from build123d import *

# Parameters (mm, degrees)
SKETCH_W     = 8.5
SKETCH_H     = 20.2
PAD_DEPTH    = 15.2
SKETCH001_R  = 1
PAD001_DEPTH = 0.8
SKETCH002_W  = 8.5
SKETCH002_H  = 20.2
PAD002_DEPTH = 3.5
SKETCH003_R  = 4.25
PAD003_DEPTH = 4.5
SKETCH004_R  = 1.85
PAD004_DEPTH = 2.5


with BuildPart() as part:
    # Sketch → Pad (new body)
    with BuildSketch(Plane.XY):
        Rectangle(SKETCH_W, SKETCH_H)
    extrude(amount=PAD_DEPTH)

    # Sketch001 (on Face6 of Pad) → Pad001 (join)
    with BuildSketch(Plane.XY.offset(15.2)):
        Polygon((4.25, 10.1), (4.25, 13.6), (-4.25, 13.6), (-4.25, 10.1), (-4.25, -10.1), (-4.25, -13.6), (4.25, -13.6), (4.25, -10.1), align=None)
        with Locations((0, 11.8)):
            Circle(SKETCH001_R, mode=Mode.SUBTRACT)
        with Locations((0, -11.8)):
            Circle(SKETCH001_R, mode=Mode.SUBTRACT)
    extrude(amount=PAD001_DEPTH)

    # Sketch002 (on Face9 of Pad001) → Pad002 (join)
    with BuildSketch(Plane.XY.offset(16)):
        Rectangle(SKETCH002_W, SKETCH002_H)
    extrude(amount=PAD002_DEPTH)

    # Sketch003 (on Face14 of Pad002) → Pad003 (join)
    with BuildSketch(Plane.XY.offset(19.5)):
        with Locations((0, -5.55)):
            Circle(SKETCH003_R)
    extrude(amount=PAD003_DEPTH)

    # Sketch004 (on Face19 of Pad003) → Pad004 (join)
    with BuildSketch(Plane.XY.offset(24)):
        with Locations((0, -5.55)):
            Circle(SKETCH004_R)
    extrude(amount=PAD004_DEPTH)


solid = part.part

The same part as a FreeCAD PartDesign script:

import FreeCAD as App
import Part
import Sketcher
Q = App.Units.Quantity

doc = App.newDocument("Part")
params = doc.addObject("Spreadsheet::Sheet", "Params")
for row, (alias, value) in enumerate([
    ("sketch1_width", "8.5 mm"),
    ("sketch1_height", "20.2 mm"),
    ("pad1_length", "15.2 mm"),
    ("sketch2_diameter", "2 mm"),
    ("sketch2_width", "8.5 mm"),
    ("sketch2_height", "27.2 mm"),
    ("pad2_length", "0.8 mm"),
    ("sketch3_width", "8.5 mm"),
    ("sketch3_height", "20.2 mm"),
    ("pad3_length", "3.5 mm"),
    ("sketch4_diameter", "8.5 mm"),
    ("pad4_length", "4.5 mm"),
    ("sketch5_diameter", "3.7 mm"),
    ("pad5_length", "2.5 mm"),
], start=1):
    params.set(f"A{row}", alias)
    params.set(f"B{row}", "=" + value)
    params.setAlias(f"B{row}", alias)

body = doc.addObject("PartDesign::Body", "Body")

sketch1 = body.newObject("Sketcher::SketchObject", "Sketch")
sketch1.AttachmentSupport = (doc.getObject("XY_Plane"), [""])
sketch1.MapMode = "FlatFace"
sketch1.addGeometry([
    Part.LineSegment(App.Vector(-4, 10, 0), App.Vector(-4, -10, 0)),
    Part.LineSegment(App.Vector(-4, -10, 0), App.Vector(4, -10, 0)),
    Part.LineSegment(App.Vector(4, -10, 0), App.Vector(4, 10, 0)),
    Part.LineSegment(App.Vector(4, 10, 0), App.Vector(-4, 10, 0)),
], False)
sketch1.addConstraint([
    Sketcher.Constraint("Coincident", 0, 2, 1, 1),
    Sketcher.Constraint("Coincident", 1, 2, 2, 1),
    Sketcher.Constraint("Coincident", 2, 2, 3, 1),
    Sketcher.Constraint("Coincident", 3, 2, 0, 1),
    Sketcher.Constraint("Vertical", 0),
    Sketcher.Constraint("Horizontal", 1),
    Sketcher.Constraint("Vertical", 2),
    Sketcher.Constraint("Horizontal", 3),
    Sketcher.Constraint("Symmetric", 0, 2, 2, 2, -1, 1),
    Sketcher.Constraint("DistanceX", 1, 1, 1, 2, Q("8.5 mm")),
    Sketcher.Constraint("DistanceY", 0, 2, 0, 1, Q("20.2 mm")),
])
sketch1.setExpression("Constraints[9]", "Params.sketch1_width")
sketch1.setExpression("Constraints[10]", "Params.sketch1_height")
pad1 = body.newObject("PartDesign::Pad", "Pad")
pad1.Profile = sketch1
pad1.setExpression("Length", "Params.pad1_length")

sketch2 = body.newObject("Sketcher::SketchObject", "Sketch001")
sketch2.AttachmentSupport = (doc.getObject("XY_Plane"), [""])
sketch2.MapMode = "FlatFace"
sketch2.AttachmentOffset = App.Placement(App.Vector(0, 0, 15.2), App.Rotation())
sketch2.addGeometry([
    Part.LineSegment(App.Vector(4.2, 13.6, 0), App.Vector(-4.2, 13.6, 0)),
    Part.LineSegment(App.Vector(-4.2, 13.6, 0), App.Vector(-4.2, -13.6, 0)),
    Part.LineSegment(App.Vector(-4.2, -13.6, 0), App.Vector(4.2, -13.6, 0)),
    Part.LineSegment(App.Vector(4.2, -13.6, 0), App.Vector(4.2, 13.6, 0)),
    Part.Circle(App.Vector(0, -11.8, 0), App.Vector(0, 0, 1), 1),
    Part.Circle(App.Vector(0, 11.8, 0), App.Vector(0, 0, 1), 1),
], False)
sketch2.addConstraint([
    Sketcher.Constraint("Coincident", 0, 2, 1, 1),
    Sketcher.Constraint("Coincident", 1, 2, 2, 1),
    Sketcher.Constraint("Coincident", 2, 2, 3, 1),
    Sketcher.Constraint("Coincident", 3, 2, 0, 1),
    Sketcher.Constraint("Horizontal", 0),
    Sketcher.Constraint("Vertical", 1),
    Sketcher.Constraint("Horizontal", 2),
    Sketcher.Constraint("Vertical", 3),
    Sketcher.Constraint("Equal", 4, 5),
    Sketcher.Constraint("Symmetric", 4, 3, 5, 3, -1, 1),
    Sketcher.Constraint("Symmetric", 0, 2, 2, 2, -1, 1),
    Sketcher.Constraint("PointOnObject", 4, 3, -2),
    Sketcher.Constraint("Diameter", 4, Q("2 mm")),
    Sketcher.Constraint("DistanceX", 0, 2, 0, 1, Q("8.5 mm")),
    Sketcher.Constraint("DistanceY", 1, 2, 1, 1, Q("27.2 mm")),
    Sketcher.Constraint("DistanceY", 4, 3, -1, 1, Q("11.8 mm")),
])
sketch2.setExpression("Constraints[12]", "Params.sketch2_diameter")
sketch2.setExpression("Constraints[13]", "Params.sketch2_width")
sketch2.setExpression("Constraints[14]", "Params.sketch2_height")
pad2 = body.newObject("PartDesign::Pad", "Pad001")
pad2.Profile = sketch2
pad2.setExpression("Length", "Params.pad2_length")

sketch3 = body.newObject("Sketcher::SketchObject", "Sketch002")
sketch3.AttachmentSupport = (doc.getObject("XY_Plane"), [""])
sketch3.MapMode = "FlatFace"
sketch3.AttachmentOffset = App.Placement(App.Vector(0, 0, 16), App.Rotation())
sketch3.addGeometry([
    Part.LineSegment(App.Vector(-4, 10, 0), App.Vector(-4, -10, 0)),
    Part.LineSegment(App.Vector(-4, -10, 0), App.Vector(4, -10, 0)),
    Part.LineSegment(App.Vector(4, -10, 0), App.Vector(4, 10, 0)),
    Part.LineSegment(App.Vector(4, 10, 0), App.Vector(-4, 10, 0)),
], False)
sketch3.addConstraint([
    Sketcher.Constraint("Coincident", 0, 2, 1, 1),
    Sketcher.Constraint("Coincident", 1, 2, 2, 1),
    Sketcher.Constraint("Coincident", 2, 2, 3, 1),
    Sketcher.Constraint("Coincident", 3, 2, 0, 1),
    Sketcher.Constraint("Vertical", 0),
    Sketcher.Constraint("Horizontal", 1),
    Sketcher.Constraint("Vertical", 2),
    Sketcher.Constraint("Horizontal", 3),
    Sketcher.Constraint("Symmetric", 0, 2, 2, 2, -1, 1),
    Sketcher.Constraint("DistanceX", 1, 1, 1, 2, Q("8.5 mm")),
    Sketcher.Constraint("DistanceY", 0, 2, 0, 1, Q("20.2 mm")),
])
sketch3.setExpression("Constraints[9]", "Params.sketch3_width")
sketch3.setExpression("Constraints[10]", "Params.sketch3_height")
pad3 = body.newObject("PartDesign::Pad", "Pad002")
pad3.Profile = sketch3
pad3.setExpression("Length", "Params.pad3_length")

sketch4 = body.newObject("Sketcher::SketchObject", "Sketch003")
sketch4.AttachmentSupport = (doc.getObject("XY_Plane"), [""])
sketch4.MapMode = "FlatFace"
sketch4.AttachmentOffset = App.Placement(App.Vector(0, 0, 19.5), App.Rotation())
sketch4.addGeometry(Part.Circle(App.Vector(0, -5.5, 0), App.Vector(0, 0, 1), 4.2), False)
sketch4.addConstraint([
    Sketcher.Constraint("PointOnObject", 0, 3, -2),
    Sketcher.Constraint("Diameter", 0, Q("8.5 mm")),
    Sketcher.Constraint("DistanceY", 0, 3, -1, 1, Q("5.55 mm")),
])
sketch4.setExpression("Constraints[1]", "Params.sketch4_diameter")
pad4 = body.newObject("PartDesign::Pad", "Pad003")
pad4.Profile = sketch4
pad4.setExpression("Length", "Params.pad4_length")

sketch5 = body.newObject("Sketcher::SketchObject", "Sketch004")
sketch5.AttachmentSupport = (doc.getObject("XY_Plane"), [""])
sketch5.MapMode = "FlatFace"
sketch5.AttachmentOffset = App.Placement(App.Vector(0, 0, 24), App.Rotation())
sketch5.addGeometry(Part.Circle(App.Vector(0, -5.5, 0), App.Vector(0, 0, 1), 1.9), False)
sketch5.addConstraint([
    Sketcher.Constraint("PointOnObject", 0, 3, -2),
    Sketcher.Constraint("Diameter", 0, Q("3.7 mm")),
    Sketcher.Constraint("DistanceY", 0, 3, -1, 1, Q("5.55 mm")),
])
sketch5.setExpression("Constraints[1]", "Params.sketch5_diameter")
pad5 = body.newObject("PartDesign::Pad", "Pad004")
pad5.Profile = sketch5
pad5.setExpression("Length", "Params.pad5_length")

doc.recompute()
